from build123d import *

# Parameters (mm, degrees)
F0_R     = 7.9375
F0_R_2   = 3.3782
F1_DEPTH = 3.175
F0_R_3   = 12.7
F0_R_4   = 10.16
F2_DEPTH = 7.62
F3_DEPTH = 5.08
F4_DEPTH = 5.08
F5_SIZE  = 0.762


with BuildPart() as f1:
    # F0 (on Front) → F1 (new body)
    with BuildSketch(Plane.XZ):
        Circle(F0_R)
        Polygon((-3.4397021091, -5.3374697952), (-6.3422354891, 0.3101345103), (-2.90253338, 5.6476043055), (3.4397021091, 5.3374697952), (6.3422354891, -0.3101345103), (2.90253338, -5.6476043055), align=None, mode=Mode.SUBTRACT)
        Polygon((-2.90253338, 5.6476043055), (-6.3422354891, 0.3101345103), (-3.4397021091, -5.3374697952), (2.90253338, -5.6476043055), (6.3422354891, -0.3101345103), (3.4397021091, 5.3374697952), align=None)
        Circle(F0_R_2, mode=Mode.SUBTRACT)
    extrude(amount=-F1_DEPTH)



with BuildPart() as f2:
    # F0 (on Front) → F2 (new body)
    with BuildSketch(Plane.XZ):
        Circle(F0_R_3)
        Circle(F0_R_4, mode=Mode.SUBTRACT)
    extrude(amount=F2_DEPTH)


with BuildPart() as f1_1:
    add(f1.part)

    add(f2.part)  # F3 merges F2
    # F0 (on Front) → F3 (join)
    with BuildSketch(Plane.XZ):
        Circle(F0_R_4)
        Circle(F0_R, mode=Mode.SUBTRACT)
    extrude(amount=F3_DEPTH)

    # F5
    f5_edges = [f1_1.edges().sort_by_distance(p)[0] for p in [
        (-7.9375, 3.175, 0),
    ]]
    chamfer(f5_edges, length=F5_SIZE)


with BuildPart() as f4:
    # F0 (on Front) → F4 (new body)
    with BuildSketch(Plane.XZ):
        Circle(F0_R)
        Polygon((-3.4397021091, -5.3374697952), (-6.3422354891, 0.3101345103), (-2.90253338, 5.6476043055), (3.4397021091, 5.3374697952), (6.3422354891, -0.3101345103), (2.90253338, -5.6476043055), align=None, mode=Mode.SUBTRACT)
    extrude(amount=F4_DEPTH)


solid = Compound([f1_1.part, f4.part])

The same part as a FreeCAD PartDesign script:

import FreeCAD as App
import Part
import Sketcher
Q = App.Units.Quantity


def edges_at(feature, points):
    """Names of the edges that pass closest to the given points."""
    edges = feature.Shape.Edges
    near = lambda p: min(range(len(edges)), key=lambda i: edges[i].distToShape(Part.Vertex(*p))[0])
    return sorted({f"Edge{near(p) + 1}" for p in points})

doc = App.newDocument("Part")
params = doc.addObject("Spreadsheet::Sheet", "Params")
for row, (alias, value) in enumerate([
    ("sketch1_diameter", "0.625 in"),
    ("sketch1_diameter2", "0.266 in"),
    ("pad1_length", "0.125 in"),
    ("sketch2_diameter", "1 in"),
    ("sketch2_diameter2", "0.8 in"),
    ("pad2_length", "0.3 in"),
    ("sketch3_diameter", "0.8 in"),
    ("sketch3_diameter2", "0.625 in"),
    ("pad3_length", "0.2 in"),
    ("chamfer_size", "0.03 in"),
    ("sketch4_diameter", "0.625 in"),
    ("pad4_length", "0.2 in"),
], start=1):
    params.set(f"A{row}", alias)
    params.set(f"B{row}", "=" + value)
    params.setAlias(f"B{row}", alias)

body = doc.addObject("PartDesign::Body", "Body")

sketch1 = body.newObject("Sketcher::SketchObject", "Sketch")
sketch1.AttachmentSupport = (doc.getObject("XZ_Plane"), [""])
sketch1.MapMode = "FlatFace"
sketch1.addGeometry([
    Part.Circle(App.Vector(0, 0, 0), App.Vector(0, 0, 1), 7.9375),
    Part.Circle(App.Vector(0, 0, 0), App.Vector(0, 0, 1), 3.3782),
], False)
sketch1.addConstraint([
    Sketcher.Constraint("Coincident", 0, 3, -1, 1),
    Sketcher.Constraint("Coincident", 1, 3, -1, 1),
    Sketcher.Constraint("Diameter", 0, Q("0.625 in")),
    Sketcher.Constraint("Diameter", 1, Q("0.266 in")),
])
sketch1.setExpression("Constraints[2]", "Params.sketch1_diameter")
sketch1.setExpression("Constraints[3]", "Params.sketch1_diameter2")
pad1 = body.newObject("PartDesign::Pad", "Pad")
pad1.Profile = sketch1
pad1.setExpression("Length", "Params.pad1_length")
pad1.Reversed = True
body2 = doc.addObject("PartDesign::Body", "Body001")

sketch2 = body2.newObject("Sketcher::SketchObject", "Sketch001")
sketch2.AttachmentSupport = (doc.getObject("XZ_Plane001"), [""])
sketch2.MapMode = "FlatFace"
sketch2.addGeometry([
    Part.Circle(App.Vector(0, 0, 0), App.Vector(0, 0, 1), 12.7),
    Part.Circle(App.Vector(0, 0, 0), App.Vector(0, 0, 1), 10.16),
], False)
sketch2.addConstraint([
    Sketcher.Constraint("Coincident", 0, 3, -1, 1),
    Sketcher.Constraint("Coincident", 1, 3, -1, 1),
    Sketcher.Constraint("Diameter", 0, Q("1 in")),
    Sketcher.Constraint("Diameter", 1, Q("0.8 in")),
])
sketch2.setExpression("Constraints[2]", "Params.sketch2_diameter")
sketch2.setExpression("Constraints[3]", "Params.sketch2_diameter2")
pad2 = body2.newObject("PartDesign::Pad", "Pad001")
pad2.Profile = sketch2
pad2.setExpression("Length", "Params.pad2_length")
body.AllowCompound = True
doc.recompute()

boolean = body.newObject("PartDesign::Boolean", "Boolean")
boolean.Type = "Fuse"
boolean.addObjects([body2])

sketch3 = body.newObject("Sketcher::SketchObject", "Sketch002")
sketch3.AttachmentSupport = (doc.getObject("XZ_Plane"), [""])
sketch3.MapMode = "FlatFace"
sketch3.addGeometry([
    Part.Circle(App.Vector(0, 0, 0), App.Vector(0, 0, 1), 10.16),
    Part.Circle(App.Vector(0, 0, 0), App.Vector(0, 0, 1), 7.9375),
], False)
sketch3.addConstraint([
    Sketcher.Constraint("Coincident", 0, 3, -1, 1),
    Sketcher.Constraint("Coincident", 1, 3, -1, 1),
    Sketcher.Constraint("Diameter", 0, Q("0.8 in")),
    Sketcher.Constraint("Diameter", 1, Q("0.625 in")),
])
sketch3.setExpression("Constraints[2]", "Params.sketch3_diameter")
sketch3.setExpression("Constraints[3]", "Params.sketch3_diameter2")
pad3 = body.newObject("PartDesign::Pad", "Pad002")
pad3.Profile = sketch3
pad3.setExpression("Length", "Params.pad3_length")
doc.recompute()

chamfer = body.newObject("PartDesign::Chamfer", "Chamfer")
chamfer.Base = (pad3, edges_at(pad3, [(-7.938, 3.175, 0)]))
chamfer.setExpression("Size", "Params.chamfer_size")
body3 = doc.addObject("PartDesign::Body", "Body002")

sketch4 = body3.newObject("Sketcher::SketchObject", "Sketch003")
sketch4.AttachmentSupport = (doc.getObject("XZ_Plane002"), [""])
sketch4.MapMode = "FlatFace"
sketch4.addGeometry([
    Part.Circle(App.Vector(0, 0, 0), App.Vector(0, 0, 1), 7.9375),
    Part.LineSegment(App.Vector(2.902533, -5.647604, 0), App.Vector(-3.439702, -5.33747, 0)),
    Part.LineSegment(App.Vector(-3.439702, -5.33747, 0), App.Vector(-6.342235, 0.310135, 0)),
    Part.LineSegment(App.Vector(-6.342235, 0.310135, 0), App.Vector(-2.902533, 5.647604, 0)),
    Part.LineSegment(App.Vector(-2.902533, 5.647604, 0), App.Vector(3.439702, 5.33747, 0)),
    Part.LineSegment(App.Vector(3.439702, 5.33747, 0), App.Vector(6.342235, -0.310135, 0)),
    Part.LineSegment(App.Vector(6.342235, -0.310135, 0), App.Vector(2.902533, -5.647604, 0)),
], False)
sketch4.addConstraint([
    Sketcher.Constraint("Coincident", 1, 2, 2, 1),
    Sketcher.Constraint("Coincident", 2, 2, 3, 1),
    Sketcher.Constraint("Coincident", 3, 2, 4, 1),
    Sketcher.Constraint("Coincident", 4, 2, 5, 1),
    Sketcher.Constraint("Coincident", 5, 2, 6, 1),
    Sketcher.Constraint("Coincident", 6, 2, 1, 1),
    Sketcher.Constraint("Coincident", 0, 3, -1, 1),
    Sketcher.Constraint("Symmetric", 1, 2, 4, 2, -1, 1),
    Sketcher.Constraint("Symmetric", 2, 2, 5, 2, -1, 1),
    Sketcher.Constraint("Symmetric", 3, 2, 6, 2, -1, 1),
    Sketcher.Constraint("Equal", 1, 2),
    Sketcher.Constraint("Equal", 2, 3),
    Sketcher.Constraint("Diameter", 0, Q("0.625 in")),
    Sketcher.Constraint("DistanceY", 1, 2, -1, 1, 5.33747),
    Sketcher.Constraint("DistanceY", 2, 2, 3, 2, 5.33747),
    Sketcher.Constraint("DistanceX", 1, 2, 3, 2, 0.537169),
    Sketcher.Constraint("DistanceX", 3, 2, 5, 2, 9.244769),
])
sketch4.setExpression("Constraints[12]", "Params.sketch4_diameter")
pad4 = body3.newObject("PartDesign::Pad", "Pad003")
pad4.Profile = sketch4
pad4.setExpression("Length", "Params.pad4_length")

doc.recompute()
